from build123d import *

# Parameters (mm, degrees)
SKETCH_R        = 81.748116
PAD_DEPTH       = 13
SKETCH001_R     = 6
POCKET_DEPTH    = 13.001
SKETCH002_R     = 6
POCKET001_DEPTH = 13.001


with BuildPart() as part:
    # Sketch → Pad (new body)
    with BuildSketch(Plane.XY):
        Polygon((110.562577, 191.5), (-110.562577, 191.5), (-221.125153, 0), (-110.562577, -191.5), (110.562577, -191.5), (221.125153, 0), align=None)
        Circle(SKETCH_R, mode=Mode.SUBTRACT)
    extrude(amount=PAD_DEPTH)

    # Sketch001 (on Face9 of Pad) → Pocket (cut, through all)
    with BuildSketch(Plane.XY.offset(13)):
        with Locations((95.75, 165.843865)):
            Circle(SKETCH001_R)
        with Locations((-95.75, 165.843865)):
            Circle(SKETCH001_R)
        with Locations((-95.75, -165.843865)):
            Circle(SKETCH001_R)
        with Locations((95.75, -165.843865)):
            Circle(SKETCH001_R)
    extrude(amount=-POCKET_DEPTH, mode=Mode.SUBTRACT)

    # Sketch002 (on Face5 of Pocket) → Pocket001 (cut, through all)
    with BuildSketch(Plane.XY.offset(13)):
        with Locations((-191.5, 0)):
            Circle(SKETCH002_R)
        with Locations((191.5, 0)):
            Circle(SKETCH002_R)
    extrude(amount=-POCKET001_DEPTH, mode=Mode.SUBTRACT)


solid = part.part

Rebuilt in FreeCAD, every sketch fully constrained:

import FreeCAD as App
import Part
import Sketcher

V = App.Vector
Q = App.Units.Quantity


def add_polygon(sketch, points):
    """Adds a closed chain of lines whose ends are joined by coincident constraints."""
    first, n = sketch.GeometryCount, len(points)
    for a, b in zip(points, points[1:] + points[:1]):
        sketch.addGeometry(Part.LineSegment(App.Vector(*a, 0), App.Vector(*b, 0)), False)
    for i in range(n):
        sketch.addConstraint(Sketcher.Constraint("Coincident", first + i, 2, first + (i + 1) % n, 1))

doc = App.newDocument("Part")
body = doc.addObject("PartDesign::Body", "Body")

# Sketch on XY plane
sketch1 = doc.addObject("Sketcher::SketchObject", "Sketch")
body.addObject(sketch1)
sketch1.AttachmentSupport = (doc.XY_Plane, [""])
sketch1.MapMode = "FlatFace"
add_polygon(sketch1, [(111, 192), (-111, 192), (-221, 0), (-111, -192), (111, -192), (221, 0)])  # lines 0-5
sketch1.addGeometry(Part.Circle(V(0, 0, 0), V(0, 0, 1), 82), False)  # 6
sketch1.addConstraint([
    Sketcher.Constraint("Horizontal", 0),
    Sketcher.Constraint("Horizontal", 3),
    Sketcher.Constraint("Coincident", 6, 3, -1, 1),
    Sketcher.Constraint("Symmetric", 0, 2, 3, 2, -1, 1),
    Sketcher.Constraint("Symmetric", 1, 2, 4, 2, -1, 1),
    Sketcher.Constraint("PointOnObject", 1, 2, -1),
    Sketcher.Constraint("Parallel", 2, 5),
    Sketcher.Constraint("Vertical", 0, 2, 2, 2),
    Sketcher.Constraint("Angle", 1, Q("-120 deg")),
    Sketcher.Constraint("DistanceY", 2, 2, 0, 2, Q("383 mm")),
    Sketcher.Constraint("Diameter", 6, Q("163.496232 mm")),
    Sketcher.Constraint("DistanceX", 0, 2, 0, 1, Q("221.125154 mm")),
])
pad1 = doc.addObject("PartDesign::Pad", "Pad")
body.addObject(pad1)
pad1.Profile = sketch1
pad1.Length = 13

# Sketch on XY plane
sketch2 = doc.addObject("Sketcher::SketchObject", "Sketch001")
body.addObject(sketch2)
sketch2.AttachmentSupport = (doc.XY_Plane, [""])
sketch2.MapMode = "FlatFace"
sketch2.AttachmentOffset = App.Placement(V(0, 0, 13), App.Rotation())
sketch2.addGeometry([
    Part.Circle(V(96, 166, 0), V(0, 0, 1), 6),
    Part.Circle(V(-96, 166, 0), V(0, 0, 1), 6),
    Part.Circle(V(-96, -166, 0), V(0, 0, 1), 6),
    Part.Circle(V(96, -166, 0), V(0, 0, 1), 6),
], False)
sketch2.addConstraint([
    Sketcher.Constraint("Equal", 0, 1),
    Sketcher.Constraint("Equal", 1, 2),
    Sketcher.Constraint("Equal", 2, 3),
    Sketcher.Constraint("Symmetric", 0, 3, 2, 3, -1, 1),
    Sketcher.Constraint("Symmetric", 1, 3, 3, 3, -1, 1),
    Sketcher.Constraint("Symmetric", 0, 3, 1, 3, -2),
    Sketcher.Constraint("Diameter", 0, Q("12 mm")),
    Sketcher.Constraint("DistanceX", 1, 3, 0, 3, Q("191.5 mm")),
    Sketcher.Constraint("DistanceY", 2, 3, 1, 3, Q("331.68773 mm")),
])
pocket1 = doc.addObject("PartDesign::Pocket", "Pocket")
body.addObject(pocket1)
pocket1.Profile = sketch2
pocket1.Type = "ThroughAll"

# Sketch on XY plane
sketch3 = doc.addObject("Sketcher::SketchObject", "Sketch002")
body.addObject(sketch3)
sketch3.AttachmentSupport = (doc.XY_Plane, [""])
sketch3.MapMode = "FlatFace"
sketch3.AttachmentOffset = App.Placement(V(0, 0, 13), App.Rotation())
sketch3.addGeometry([
    Part.Circle(V(-192, 0, 0), V(0, 0, 1), 6),
    Part.Circle(V(192, 0, 0), V(0, 0, 1), 6),
], False)
sketch3.addConstraint([
    Sketcher.Constraint("Equal", 0, 1),
    Sketcher.Constraint("Symmetric", 0, 3, 1, 3, -1, 1),
    Sketcher.Constraint("PointOnObject", 0, 3, -1),
    Sketcher.Constraint("Diameter", 0, Q("12 mm")),
    Sketcher.Constraint("DistanceX", 0, 3, 1, 3, Q("383 mm")),
])
pocket2 = doc.addObject("PartDesign::Pocket", "Pocket001")
body.addObject(pocket2)
pocket2.Profile = sketch3
pocket2.Type = "ThroughAll"

doc.recompute()
